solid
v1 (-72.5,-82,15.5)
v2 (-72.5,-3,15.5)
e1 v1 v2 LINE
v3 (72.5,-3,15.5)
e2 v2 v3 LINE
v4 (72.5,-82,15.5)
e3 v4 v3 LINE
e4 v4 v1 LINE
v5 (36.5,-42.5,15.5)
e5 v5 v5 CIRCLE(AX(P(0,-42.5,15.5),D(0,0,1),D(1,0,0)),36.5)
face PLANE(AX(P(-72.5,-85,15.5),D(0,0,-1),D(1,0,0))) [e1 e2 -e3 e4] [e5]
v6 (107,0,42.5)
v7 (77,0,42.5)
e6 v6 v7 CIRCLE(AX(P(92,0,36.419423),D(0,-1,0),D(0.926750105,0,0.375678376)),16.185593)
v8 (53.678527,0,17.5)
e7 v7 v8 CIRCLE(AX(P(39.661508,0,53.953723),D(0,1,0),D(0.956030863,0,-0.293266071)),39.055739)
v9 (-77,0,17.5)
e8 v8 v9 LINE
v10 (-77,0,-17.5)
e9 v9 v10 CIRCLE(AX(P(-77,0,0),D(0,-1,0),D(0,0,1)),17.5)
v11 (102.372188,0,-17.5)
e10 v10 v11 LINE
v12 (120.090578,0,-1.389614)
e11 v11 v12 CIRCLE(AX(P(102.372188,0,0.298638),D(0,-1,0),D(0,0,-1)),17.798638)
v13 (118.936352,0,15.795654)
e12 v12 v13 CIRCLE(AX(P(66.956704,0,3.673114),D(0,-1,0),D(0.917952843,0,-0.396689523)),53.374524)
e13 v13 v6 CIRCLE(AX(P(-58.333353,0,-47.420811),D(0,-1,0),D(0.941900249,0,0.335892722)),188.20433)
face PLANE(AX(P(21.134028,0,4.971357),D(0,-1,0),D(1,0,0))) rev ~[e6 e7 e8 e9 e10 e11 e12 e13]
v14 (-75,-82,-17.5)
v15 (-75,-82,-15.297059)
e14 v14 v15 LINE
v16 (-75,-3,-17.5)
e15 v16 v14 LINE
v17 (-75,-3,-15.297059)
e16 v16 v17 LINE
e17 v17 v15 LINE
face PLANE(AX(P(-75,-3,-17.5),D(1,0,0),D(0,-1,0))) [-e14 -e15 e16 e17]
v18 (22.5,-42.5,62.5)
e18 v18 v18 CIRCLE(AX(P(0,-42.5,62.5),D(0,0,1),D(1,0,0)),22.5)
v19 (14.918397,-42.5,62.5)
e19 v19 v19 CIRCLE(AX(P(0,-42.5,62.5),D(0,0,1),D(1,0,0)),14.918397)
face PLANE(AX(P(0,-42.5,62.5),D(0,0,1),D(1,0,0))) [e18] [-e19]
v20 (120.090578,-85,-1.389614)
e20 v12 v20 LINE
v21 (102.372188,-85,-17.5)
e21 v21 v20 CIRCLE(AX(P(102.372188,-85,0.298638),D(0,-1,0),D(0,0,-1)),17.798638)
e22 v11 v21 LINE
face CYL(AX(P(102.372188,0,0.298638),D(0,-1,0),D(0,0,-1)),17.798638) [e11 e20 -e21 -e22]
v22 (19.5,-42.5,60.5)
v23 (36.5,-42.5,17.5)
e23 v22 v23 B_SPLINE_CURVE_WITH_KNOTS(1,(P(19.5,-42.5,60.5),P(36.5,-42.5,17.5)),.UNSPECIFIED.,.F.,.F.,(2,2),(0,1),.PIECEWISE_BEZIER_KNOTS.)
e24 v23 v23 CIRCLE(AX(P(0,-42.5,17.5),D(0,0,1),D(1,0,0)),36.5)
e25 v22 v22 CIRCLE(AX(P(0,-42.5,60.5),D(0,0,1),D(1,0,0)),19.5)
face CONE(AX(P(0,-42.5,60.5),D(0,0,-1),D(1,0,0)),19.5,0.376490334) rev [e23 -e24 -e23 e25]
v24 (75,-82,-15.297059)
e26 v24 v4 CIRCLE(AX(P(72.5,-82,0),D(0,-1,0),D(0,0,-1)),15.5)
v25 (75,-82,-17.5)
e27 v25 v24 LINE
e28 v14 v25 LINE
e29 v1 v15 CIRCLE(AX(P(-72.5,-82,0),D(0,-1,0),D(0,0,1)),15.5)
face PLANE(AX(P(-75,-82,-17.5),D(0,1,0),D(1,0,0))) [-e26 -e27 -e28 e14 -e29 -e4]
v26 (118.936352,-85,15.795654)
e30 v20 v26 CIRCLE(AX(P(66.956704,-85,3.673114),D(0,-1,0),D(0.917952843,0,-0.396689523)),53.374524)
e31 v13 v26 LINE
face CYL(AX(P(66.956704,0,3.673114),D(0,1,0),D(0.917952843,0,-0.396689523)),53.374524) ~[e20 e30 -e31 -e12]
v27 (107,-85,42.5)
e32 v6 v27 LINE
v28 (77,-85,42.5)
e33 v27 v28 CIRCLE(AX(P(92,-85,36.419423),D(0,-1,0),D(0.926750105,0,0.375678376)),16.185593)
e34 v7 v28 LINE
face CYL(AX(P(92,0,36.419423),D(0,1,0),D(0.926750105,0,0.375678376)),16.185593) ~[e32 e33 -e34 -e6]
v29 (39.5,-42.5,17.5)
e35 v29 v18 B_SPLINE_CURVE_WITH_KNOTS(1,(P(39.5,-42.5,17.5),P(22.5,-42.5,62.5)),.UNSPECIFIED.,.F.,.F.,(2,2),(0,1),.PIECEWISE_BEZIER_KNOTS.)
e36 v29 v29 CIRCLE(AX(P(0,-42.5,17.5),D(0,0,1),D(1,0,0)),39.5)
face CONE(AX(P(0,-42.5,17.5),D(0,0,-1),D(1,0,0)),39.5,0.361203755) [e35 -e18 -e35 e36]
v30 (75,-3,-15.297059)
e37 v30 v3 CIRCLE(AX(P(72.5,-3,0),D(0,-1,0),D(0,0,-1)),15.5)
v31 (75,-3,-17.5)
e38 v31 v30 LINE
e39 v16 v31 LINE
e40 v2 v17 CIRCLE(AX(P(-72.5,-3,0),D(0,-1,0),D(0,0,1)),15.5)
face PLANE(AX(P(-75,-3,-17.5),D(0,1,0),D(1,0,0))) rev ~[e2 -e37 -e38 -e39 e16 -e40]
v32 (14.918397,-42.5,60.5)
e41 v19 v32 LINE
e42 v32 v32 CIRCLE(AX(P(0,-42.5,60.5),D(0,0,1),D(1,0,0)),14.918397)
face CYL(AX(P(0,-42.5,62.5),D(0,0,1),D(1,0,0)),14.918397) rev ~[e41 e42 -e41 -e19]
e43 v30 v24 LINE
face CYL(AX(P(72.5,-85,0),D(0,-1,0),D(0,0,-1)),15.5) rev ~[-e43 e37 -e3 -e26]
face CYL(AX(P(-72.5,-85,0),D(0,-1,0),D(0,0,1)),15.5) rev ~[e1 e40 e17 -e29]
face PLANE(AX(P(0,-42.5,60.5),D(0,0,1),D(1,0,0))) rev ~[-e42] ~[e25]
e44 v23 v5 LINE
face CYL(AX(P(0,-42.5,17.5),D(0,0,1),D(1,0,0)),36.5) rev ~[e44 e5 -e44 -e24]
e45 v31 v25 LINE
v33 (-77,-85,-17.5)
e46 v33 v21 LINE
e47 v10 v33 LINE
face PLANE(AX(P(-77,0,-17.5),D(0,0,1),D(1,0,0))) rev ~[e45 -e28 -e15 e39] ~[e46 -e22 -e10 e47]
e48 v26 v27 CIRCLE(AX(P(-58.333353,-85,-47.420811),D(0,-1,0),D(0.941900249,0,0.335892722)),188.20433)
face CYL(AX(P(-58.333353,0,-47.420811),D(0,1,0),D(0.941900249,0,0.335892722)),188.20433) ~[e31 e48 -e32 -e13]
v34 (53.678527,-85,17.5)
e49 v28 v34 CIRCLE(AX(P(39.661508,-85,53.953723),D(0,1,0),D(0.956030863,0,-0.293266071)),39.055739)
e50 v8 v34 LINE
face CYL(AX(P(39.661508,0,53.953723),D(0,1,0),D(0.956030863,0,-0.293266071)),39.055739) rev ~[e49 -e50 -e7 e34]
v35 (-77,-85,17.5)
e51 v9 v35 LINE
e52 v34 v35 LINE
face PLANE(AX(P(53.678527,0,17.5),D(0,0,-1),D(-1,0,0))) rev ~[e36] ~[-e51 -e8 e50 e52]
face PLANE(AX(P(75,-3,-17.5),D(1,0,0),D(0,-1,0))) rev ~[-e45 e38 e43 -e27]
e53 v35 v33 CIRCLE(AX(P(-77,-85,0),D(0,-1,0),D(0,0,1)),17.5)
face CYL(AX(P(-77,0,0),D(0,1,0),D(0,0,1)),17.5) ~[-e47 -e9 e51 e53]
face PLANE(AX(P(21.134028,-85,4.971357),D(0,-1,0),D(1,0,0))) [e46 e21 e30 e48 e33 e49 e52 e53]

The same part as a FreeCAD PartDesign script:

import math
import FreeCAD as App
import Part
import Sketcher


def edges_at(feature, points):
    """Names of the edges that pass closest to the given points."""
    edges = feature.Shape.Edges
    near = lambda p: min(range(len(edges)), key=lambda i: edges[i].distToShape(Part.Vertex(*p))[0])
    return sorted({f"Edge{near(p) + 1}" for p in points})


def add_polygon(sketch, points):
    """Adds a closed chain of lines whose ends are joined by coincident constraints."""
    first, n = sketch.GeometryCount, len(points)
    for a, b in zip(points, points[1:] + points[:1]):
        sketch.addGeometry(Part.LineSegment(App.Vector(*a, 0), App.Vector(*b, 0)), False)
    for i in range(n):
        sketch.addConstraint(Sketcher.Constraint("Coincident", first + i, 2, first + (i + 1) % n, 1))

doc = App.newDocument("Part")
body = doc.addObject("PartDesign::Body", "Body")

# Sketch on XZ plane
sketch1 = doc.addObject("Sketcher::SketchObject", "Sketch")
body.addObject(sketch1)
sketch1.AttachmentSupport = (doc.XZ_Plane, [""])
sketch1.MapMode = "FlatFace"
sketch1.addGeometry(Part.LineSegment(App.Vector(54, 18, 0), App.Vector(-77, 18, 0)), False)
sketch1.addGeometry(Part.ArcOfCircle(Part.Circle(App.Vector(-77, 0, 0), App.Vector(0, 0, 1), 18), math.radians(90), math.radians(270)), False)
sketch1.addGeometry(Part.LineSegment(App.Vector(-77, -18, 0), App.Vector(116, -18, 0)), False)
sketch1.addGeometry(Part.ArcOfCircle(Part.Circle(App.Vector(67, 4, 0), App.Vector(0, 0, 1), 53), math.radians(-23), math.radians(13)), False)
sketch1.addGeometry(Part.ArcOfCircle(Part.Circle(App.Vector(-58, -47, 0), App.Vector(0, 0, 1), 188), math.radians(19.63), math.radians(28.54)), False)
sketch1.addGeometry(Part.ArcOfCircle(Part.Circle(App.Vector(92, 36, 0), App.Vector(0, 0, 1), 16), math.radians(22), math.radians(158)), False)
sketch1.addGeometry(Part.ArcOfCircle(Part.Circle(App.Vector(40, 54, 0), App.Vector(0, 0, 1), 39), math.radians(-69), math.radians(-17)), False)
sketch1.addConstraint(Sketcher.Constraint("Tangent", 0, 2, 1, 1))
sketch1.addConstraint(Sketcher.Constraint("Tangent", 1, 2, 2, 1))
sketch1.addConstraint(Sketcher.Constraint("Coincident", 2, 2, 3, 1))
sketch1.addConstraint(Sketcher.Constraint("Coincident", 3, 2, 4, 1))
sketch1.addConstraint(Sketcher.Constraint("Coincident", 4, 2, 5, 1))
sketch1.addConstraint(Sketcher.Constraint("Coincident", 5, 2, 6, 2))
sketch1.addConstraint(Sketcher.Constraint("Coincident", 6, 1, 0, 1))
sketch1.addConstraint(Sketcher.Constraint("Horizontal", 0))
sketch1.addConstraint(Sketcher.Constraint("Horizontal", 2))
sketch1.addConstraint(Sketcher.Constraint("PointOnObject", 1, 3, -1))
sketch1.addConstraint(Sketcher.Constraint("Horizontal", 4, 2, 5, 2))
sketch1.addConstraint(Sketcher.Constraint("Radius", 1, 17.5))
sketch1.addConstraint(Sketcher.Constraint("DistanceX", 1, 3, -1, 1, 77.0))
sketch1.addConstraint(Sketcher.Constraint("DistanceX", -1, 1, 5, 3, 92.0))
sketch1.addConstraint(Sketcher.Constraint("DistanceX", -1, 1, 4, 2, 107.0))
sketch1.addConstraint(Sketcher.Constraint("DistanceY", 2, 2, 4, 2, 60.0))
sketch1.addConstraint(Sketcher.Constraint("DistanceX", 2, 1, 2, 2, 192.952))
sketch1.addConstraint(Sketcher.Constraint("Radius", 4, 188.20433))
sketch1.addConstraint(Sketcher.Constraint("Radius", 6, 39.055739))
sketch1.addConstraint(Sketcher.Constraint("Radius", 3, 53.374524))
sketch1.addConstraint(Sketcher.Constraint("Radius", 5, 16.185593))
sketch1.addConstraint(Sketcher.Constraint("DistanceY", 5, 3, 6, 3, 17.534301))
sketch1.addConstraint(Sketcher.Constraint("DistanceY", 4, 3, -1, 1, 47.420811))
sketch1.addConstraint(Sketcher.Constraint("DistanceY", 3, 3, 5, 3, 32.746308))
pad1 = doc.addObject("PartDesign::Pad", "Pad")
body.addObject(pad1)
pad1.Profile = sketch1
pad1.Length = 85

# Sketch on XZ plane
sketch2 = doc.addObject("Sketcher::SketchObject", "Sketch001")
body.addObject(sketch2)
sketch2.AttachmentSupport = (doc.XZ_Plane, [""])
sketch2.MapMode = "FlatFace"
sketch2.AttachmentOffset = App.Placement(App.Vector(0, 0, 85), App.Rotation())
sketch2.addGeometry(Part.LineSegment(App.Vector(-72, -16, 0), App.Vector(72, -16, 0)), False)
sketch2.addGeometry(Part.ArcOfCircle(Part.Circle(App.Vector(72, 0, 0), App.Vector(0, 0, 1), 16), math.radians(-90), math.radians(90)), False)
sketch2.addGeometry(Part.LineSegment(App.Vector(72, 16, 0), App.Vector(-72, 16, 0)), False)
sketch2.addGeometry(Part.ArcOfCircle(Part.Circle(App.Vector(-72, 0, 0), App.Vector(0, 0, 1), 16), math.radians(90), math.radians(270)), False)
sketch2.addConstraint(Sketcher.Constraint("Tangent", 0, 2, 1, 1))
sketch2.addConstraint(Sketcher.Constraint("Tangent", 1, 2, 2, 1))
sketch2.addConstraint(Sketcher.Constraint("Tangent", 2, 2, 3, 1))
sketch2.addConstraint(Sketcher.Constraint("Tangent", 3, 2, 0, 1))
sketch2.addConstraint(Sketcher.Constraint("Horizontal", 0))
sketch2.addConstraint(Sketcher.Constraint("Horizontal", 2))
sketch2.addConstraint(Sketcher.Constraint("Symmetric", 1, 3, 3, 3, -1, 1))
sketch2.addConstraint(Sketcher.Constraint("Radius", 1, 15.5))
sketch2.addConstraint(Sketcher.Constraint("DistanceX", 0, 1, 0, 2, 145.0))
pocket1 = doc.addObject("PartDesign::Pocket", "Pocket")
body.addObject(pocket1)
pocket1.Profile = sketch2
pocket1.Length = 82

# Sketch on XZ plane
sketch3 = doc.addObject("Sketcher::SketchObject", "Sketch002")
body.addObject(sketch3)
sketch3.AttachmentSupport = (doc.XZ_Plane, [""])
sketch3.MapMode = "FlatFace"
sketch3.AttachmentOffset = App.Placement(App.Vector(0, 0, 85), App.Rotation())
add_polygon(sketch3, [(-80.3, 15.8), (-89.8, 7.1), (-91, 3), (-88.3, -7.9), (-85, -14.2), (-77, -16.4), (74.4, -16.4), (83.2, -15.5), (93.2, -10.9), (95.8, 5.4), (83.2, 16.6), (-69.6, 16.6)])  # lines 0-11
sketch3.addConstraint(Sketcher.Constraint("Horizontal", 5))
sketch3.addConstraint(Sketcher.Constraint("Horizontal", 10))
sketch3.addConstraint(Sketcher.Constraint("Vertical", 6, 2, 9, 2))
sketch3.addConstraint(Sketcher.Constraint("DistanceX", 4, 2, -1, 1, 77.0))
sketch3.addConstraint(Sketcher.Constraint("DistanceY", 6, 2, -1, 1, 15.5))
sketch3.addConstraint(Sketcher.Constraint("DistanceY", 4, 2, -1, 1, 16.4173))
sketch3.addConstraint(Sketcher.Constraint("DistanceX", 11, 2, -1, 1, 80.3302))
sketch3.addConstraint(Sketcher.Constraint("DistanceY", 1, 2, 0, 2, 4.111199))
sketch3.addConstraint(Sketcher.Constraint("DistanceX", 7, 2, 8, 2, 2.655901))
sketch3.addConstraint(Sketcher.Constraint("Distance", 0, 12.890032))
sketch3.addConstraint(Sketcher.Constraint("Distance", 2, 11.256729))
sketch3.addConstraint(Sketcher.Constraint("Distance", 4, 8.303331))
sketch3.addConstraint(Sketcher.Constraint("Distance", 7, 11.003529))
sketch3.addConstraint(Sketcher.Constraint("Distance", 8, 16.558379))
sketch3.addConstraint(Sketcher.Constraint("Distance", 9, 16.92715))
sketch3.addConstraint(Sketcher.Constraint("Distance", 11, 10.74746))
sketch3.addConstraint(Sketcher.Constraint("DistanceX", 5, 1, 5, 2, 151.385643))
sketch3.addConstraint(Sketcher.Constraint("DistanceX", 10, 2, 10, 1, 152.781136))
sketch3.addConstraint(Sketcher.Constraint("DistanceX", 2, 2, -1, 1, 88.28371))
sketch3.addConstraint(Sketcher.Constraint("DistanceY", 2, 2, -1, 1, 7.94136))
sketch3.addConstraint(Sketcher.Constraint("DistanceX", 3, 2, -1, 1, 85.007519))
sketch3.addConstraint(Sketcher.Constraint("DistanceY", 7, 2, -1, 1, 10.932331))
sketch3.addConstraint(Sketcher.Constraint("DistanceX", 10, 2, -1, 1, 69.61453))
sketch3.addConstraint(Sketcher.Constraint("DistanceX", 1, 2, 0, 2, 1.19444))
pad2 = doc.addObject("PartDesign::Pad", "Pad001")
body.addObject(pad2)
pad2.Profile = sketch3
pad2.Length = 3
pad2.Reversed = True

# Sketch on XY plane
sketch4 = doc.addObject("Sketcher::SketchObject", "Sketch003")
body.addObject(sketch4)
sketch4.AttachmentSupport = (doc.XY_Plane, [""])
sketch4.MapMode = "FlatFace"
sketch4.AttachmentOffset = App.Placement(App.Vector(0, 0, 17.5), App.Rotation())
sketch4.addGeometry(Part.Circle(App.Vector(0, -42, 0), App.Vector(0, 0, 1), 36), False)
sketch4.addConstraint(Sketcher.Constraint("PointOnObject", 0, 3, -2))
sketch4.addConstraint(Sketcher.Constraint("Diameter", 0, 73.0))
sketch4.addConstraint(Sketcher.Constraint("DistanceY", 0, 3, -1, 1, 42.5))
pocket2 = doc.addObject("PartDesign::Pocket", "Pocket001")
body.addObject(pocket2)
pocket2.Profile = sketch4
pocket2.Length = 25

# Sketch on XY plane
sketch5 = doc.addObject("Sketcher::SketchObject", "Sketch004")
body.addObject(sketch5)
sketch5.AttachmentSupport = (doc.XY_Plane, [""])
sketch5.MapMode = "FlatFace"
sketch5.AttachmentOffset = App.Placement(App.Vector(0, 0, -17.5), App.Rotation())
add_polygon(sketch5, [(-75, -82), (-75, -3), (75, -3), (75, -82)])  # lines 0-3
sketch5.addConstraint(Sketcher.Constraint("Vertical", 0))
sketch5.addConstraint(Sketcher.Constraint("Horizontal", 1))
sketch5.addConstraint(Sketcher.Constraint("Vertical", 2))
sketch5.addConstraint(Sketcher.Constraint("Horizontal", 3))
sketch5.addConstraint(Sketcher.Constraint("DistanceX", 1, 1, 1, 2, 150.0))
sketch5.addConstraint(Sketcher.Constraint("DistanceY", 0, 1, 0, 2, 79.0))
sketch5.addConstraint(Sketcher.Constraint("DistanceX", 0, 2, -1, 1, 75.0))
sketch5.addConstraint(Sketcher.Constraint("DistanceY", 0, 2, -1, 1, 3.0))
pocket3 = doc.addObject("PartDesign::Pocket", "Pocket002")
body.addObject(pocket3)
pocket3.Profile = sketch5
pocket3.Length = 25
pocket3.Reversed = True

# Sketch on XY plane
sketch6 = doc.addObject("Sketcher::SketchObject", "Sketch005")
body.addObject(sketch6)
sketch6.AttachmentSupport = (doc.XY_Plane, [""])
sketch6.MapMode = "FlatFace"
sketch6.AttachmentOffset = App.Placement(App.Vector(0, 0, 17.5), App.Rotation())
sketch6.addGeometry(Part.Circle(App.Vector(0, -42, 0), App.Vector(0, 0, 1), 40), False)
sketch6.addConstraint(Sketcher.Constraint("PointOnObject", 0, 3, -2))
sketch6.addConstraint(Sketcher.Constraint("Diameter", 0, 79.0))
sketch6.addConstraint(Sketcher.Constraint("DistanceY", 0, 3, -1, 1, 42.5))

# Sketch on XY plane
sketch7 = doc.addObject("Sketcher::SketchObject", "Sketch006")
body.addObject(sketch7)
sketch7.AttachmentSupport = (doc.XY_Plane, [""])
sketch7.MapMode = "FlatFace"
sketch7.AttachmentOffset = App.Placement(App.Vector(0, 0, 62.5), App.Rotation())
sketch7.addGeometry(Part.Circle(App.Vector(0, -42, 0), App.Vector(0, 0, 1), 22), False)
sketch7.addConstraint(Sketcher.Constraint("PointOnObject", 0, 3, -2))
sketch7.addConstraint(Sketcher.Constraint("Diameter", 0, 45.0))
sketch7.addConstraint(Sketcher.Constraint("DistanceY", 0, 3, -1, 1, 42.5))

additiveloft = doc.addObject("PartDesign::AdditiveLoft", "AdditiveLoft")
body.addObject(additiveloft)
additiveloft.Profile = sketch6
additiveloft.Sections = [sketch7]

# Sketch on XY plane
sketch8 = doc.addObject("Sketcher::SketchObject", "Sketch007")
body.addObject(sketch8)
sketch8.AttachmentSupport = (doc.XY_Plane, [""])
sketch8.MapMode = "FlatFace"
sketch8.AttachmentOffset = App.Placement(App.Vector(0, 0, 60.5), App.Rotation())
sketch8.addGeometry(Part.Circle(App.Vector(0, -42, 0), App.Vector(0, 0, 1), 20), False)
sketch8.addConstraint(Sketcher.Constraint("PointOnObject", 0, 3, -2))
sketch8.addConstraint(Sketcher.Constraint("Diameter", 0, 39.0))
sketch8.addConstraint(Sketcher.Constraint("DistanceY", 0, 3, -1, 1, 42.5))

# Sketch on XY plane
sketch9 = doc.addObject("Sketcher::SketchObject", "Sketch008")
body.addObject(sketch9)
sketch9.AttachmentSupport = (doc.XY_Plane, [""])
sketch9.MapMode = "FlatFace"
sketch9.AttachmentOffset = App.Placement(App.Vector(0, 0, 17.5), App.Rotation())
sketch9.addGeometry(Part.Circle(App.Vector(0, -42, 0), App.Vector(0, 0, 1), 36), False)
sketch9.addConstraint(Sketcher.Constraint("PointOnObject", 0, 3, -2))
sketch9.addConstraint(Sketcher.Constraint("Diameter", 0, 73.0))
sketch9.addConstraint(Sketcher.Constraint("DistanceY", 0, 3, -1, 1, 42.5))

subtractiveloft = doc.addObject("PartDesign::SubtractiveLoft", "SubtractiveLoft")
body.addObject(subtractiveloft)
subtractiveloft.Profile = sketch8
subtractiveloft.Sections = [sketch9]

# Sketch on XY plane
sketch10 = doc.addObject("Sketcher::SketchObject", "Sketch009")
body.addObject(sketch10)
sketch10.AttachmentSupport = (doc.XY_Plane, [""])
sketch10.MapMode = "FlatFace"
sketch10.AttachmentOffset = App.Placement(App.Vector(0, 0, 62.5), App.Rotation())
sketch10.addGeometry(Part.Circle(App.Vector(0, -42, 0), App.Vector(0, 0, 1), 15), False)
sketch10.addConstraint(Sketcher.Constraint("PointOnObject", 0, 3, -2))
sketch10.addConstraint(Sketcher.Constraint("DistanceY", 0, 3, -1, 1, 42.5))
sketch10.addConstraint(Sketcher.Constraint("Diameter", 0, 29.836794))
pocket4 = doc.addObject("PartDesign::Pocket", "Pocket003")
body.addObject(pocket4)
pocket4.Profile = sketch10
pocket4.Length = 25
doc.recompute()

fillet = doc.addObject("PartDesign::Fillet", "Fillet")
body.addObject(fillet)
fillet.Base = (pocket4, edges_at(pocket4, [(115.952, -42.5, -17.5)]))
fillet.Radius = 17.798638

doc.recompute()
